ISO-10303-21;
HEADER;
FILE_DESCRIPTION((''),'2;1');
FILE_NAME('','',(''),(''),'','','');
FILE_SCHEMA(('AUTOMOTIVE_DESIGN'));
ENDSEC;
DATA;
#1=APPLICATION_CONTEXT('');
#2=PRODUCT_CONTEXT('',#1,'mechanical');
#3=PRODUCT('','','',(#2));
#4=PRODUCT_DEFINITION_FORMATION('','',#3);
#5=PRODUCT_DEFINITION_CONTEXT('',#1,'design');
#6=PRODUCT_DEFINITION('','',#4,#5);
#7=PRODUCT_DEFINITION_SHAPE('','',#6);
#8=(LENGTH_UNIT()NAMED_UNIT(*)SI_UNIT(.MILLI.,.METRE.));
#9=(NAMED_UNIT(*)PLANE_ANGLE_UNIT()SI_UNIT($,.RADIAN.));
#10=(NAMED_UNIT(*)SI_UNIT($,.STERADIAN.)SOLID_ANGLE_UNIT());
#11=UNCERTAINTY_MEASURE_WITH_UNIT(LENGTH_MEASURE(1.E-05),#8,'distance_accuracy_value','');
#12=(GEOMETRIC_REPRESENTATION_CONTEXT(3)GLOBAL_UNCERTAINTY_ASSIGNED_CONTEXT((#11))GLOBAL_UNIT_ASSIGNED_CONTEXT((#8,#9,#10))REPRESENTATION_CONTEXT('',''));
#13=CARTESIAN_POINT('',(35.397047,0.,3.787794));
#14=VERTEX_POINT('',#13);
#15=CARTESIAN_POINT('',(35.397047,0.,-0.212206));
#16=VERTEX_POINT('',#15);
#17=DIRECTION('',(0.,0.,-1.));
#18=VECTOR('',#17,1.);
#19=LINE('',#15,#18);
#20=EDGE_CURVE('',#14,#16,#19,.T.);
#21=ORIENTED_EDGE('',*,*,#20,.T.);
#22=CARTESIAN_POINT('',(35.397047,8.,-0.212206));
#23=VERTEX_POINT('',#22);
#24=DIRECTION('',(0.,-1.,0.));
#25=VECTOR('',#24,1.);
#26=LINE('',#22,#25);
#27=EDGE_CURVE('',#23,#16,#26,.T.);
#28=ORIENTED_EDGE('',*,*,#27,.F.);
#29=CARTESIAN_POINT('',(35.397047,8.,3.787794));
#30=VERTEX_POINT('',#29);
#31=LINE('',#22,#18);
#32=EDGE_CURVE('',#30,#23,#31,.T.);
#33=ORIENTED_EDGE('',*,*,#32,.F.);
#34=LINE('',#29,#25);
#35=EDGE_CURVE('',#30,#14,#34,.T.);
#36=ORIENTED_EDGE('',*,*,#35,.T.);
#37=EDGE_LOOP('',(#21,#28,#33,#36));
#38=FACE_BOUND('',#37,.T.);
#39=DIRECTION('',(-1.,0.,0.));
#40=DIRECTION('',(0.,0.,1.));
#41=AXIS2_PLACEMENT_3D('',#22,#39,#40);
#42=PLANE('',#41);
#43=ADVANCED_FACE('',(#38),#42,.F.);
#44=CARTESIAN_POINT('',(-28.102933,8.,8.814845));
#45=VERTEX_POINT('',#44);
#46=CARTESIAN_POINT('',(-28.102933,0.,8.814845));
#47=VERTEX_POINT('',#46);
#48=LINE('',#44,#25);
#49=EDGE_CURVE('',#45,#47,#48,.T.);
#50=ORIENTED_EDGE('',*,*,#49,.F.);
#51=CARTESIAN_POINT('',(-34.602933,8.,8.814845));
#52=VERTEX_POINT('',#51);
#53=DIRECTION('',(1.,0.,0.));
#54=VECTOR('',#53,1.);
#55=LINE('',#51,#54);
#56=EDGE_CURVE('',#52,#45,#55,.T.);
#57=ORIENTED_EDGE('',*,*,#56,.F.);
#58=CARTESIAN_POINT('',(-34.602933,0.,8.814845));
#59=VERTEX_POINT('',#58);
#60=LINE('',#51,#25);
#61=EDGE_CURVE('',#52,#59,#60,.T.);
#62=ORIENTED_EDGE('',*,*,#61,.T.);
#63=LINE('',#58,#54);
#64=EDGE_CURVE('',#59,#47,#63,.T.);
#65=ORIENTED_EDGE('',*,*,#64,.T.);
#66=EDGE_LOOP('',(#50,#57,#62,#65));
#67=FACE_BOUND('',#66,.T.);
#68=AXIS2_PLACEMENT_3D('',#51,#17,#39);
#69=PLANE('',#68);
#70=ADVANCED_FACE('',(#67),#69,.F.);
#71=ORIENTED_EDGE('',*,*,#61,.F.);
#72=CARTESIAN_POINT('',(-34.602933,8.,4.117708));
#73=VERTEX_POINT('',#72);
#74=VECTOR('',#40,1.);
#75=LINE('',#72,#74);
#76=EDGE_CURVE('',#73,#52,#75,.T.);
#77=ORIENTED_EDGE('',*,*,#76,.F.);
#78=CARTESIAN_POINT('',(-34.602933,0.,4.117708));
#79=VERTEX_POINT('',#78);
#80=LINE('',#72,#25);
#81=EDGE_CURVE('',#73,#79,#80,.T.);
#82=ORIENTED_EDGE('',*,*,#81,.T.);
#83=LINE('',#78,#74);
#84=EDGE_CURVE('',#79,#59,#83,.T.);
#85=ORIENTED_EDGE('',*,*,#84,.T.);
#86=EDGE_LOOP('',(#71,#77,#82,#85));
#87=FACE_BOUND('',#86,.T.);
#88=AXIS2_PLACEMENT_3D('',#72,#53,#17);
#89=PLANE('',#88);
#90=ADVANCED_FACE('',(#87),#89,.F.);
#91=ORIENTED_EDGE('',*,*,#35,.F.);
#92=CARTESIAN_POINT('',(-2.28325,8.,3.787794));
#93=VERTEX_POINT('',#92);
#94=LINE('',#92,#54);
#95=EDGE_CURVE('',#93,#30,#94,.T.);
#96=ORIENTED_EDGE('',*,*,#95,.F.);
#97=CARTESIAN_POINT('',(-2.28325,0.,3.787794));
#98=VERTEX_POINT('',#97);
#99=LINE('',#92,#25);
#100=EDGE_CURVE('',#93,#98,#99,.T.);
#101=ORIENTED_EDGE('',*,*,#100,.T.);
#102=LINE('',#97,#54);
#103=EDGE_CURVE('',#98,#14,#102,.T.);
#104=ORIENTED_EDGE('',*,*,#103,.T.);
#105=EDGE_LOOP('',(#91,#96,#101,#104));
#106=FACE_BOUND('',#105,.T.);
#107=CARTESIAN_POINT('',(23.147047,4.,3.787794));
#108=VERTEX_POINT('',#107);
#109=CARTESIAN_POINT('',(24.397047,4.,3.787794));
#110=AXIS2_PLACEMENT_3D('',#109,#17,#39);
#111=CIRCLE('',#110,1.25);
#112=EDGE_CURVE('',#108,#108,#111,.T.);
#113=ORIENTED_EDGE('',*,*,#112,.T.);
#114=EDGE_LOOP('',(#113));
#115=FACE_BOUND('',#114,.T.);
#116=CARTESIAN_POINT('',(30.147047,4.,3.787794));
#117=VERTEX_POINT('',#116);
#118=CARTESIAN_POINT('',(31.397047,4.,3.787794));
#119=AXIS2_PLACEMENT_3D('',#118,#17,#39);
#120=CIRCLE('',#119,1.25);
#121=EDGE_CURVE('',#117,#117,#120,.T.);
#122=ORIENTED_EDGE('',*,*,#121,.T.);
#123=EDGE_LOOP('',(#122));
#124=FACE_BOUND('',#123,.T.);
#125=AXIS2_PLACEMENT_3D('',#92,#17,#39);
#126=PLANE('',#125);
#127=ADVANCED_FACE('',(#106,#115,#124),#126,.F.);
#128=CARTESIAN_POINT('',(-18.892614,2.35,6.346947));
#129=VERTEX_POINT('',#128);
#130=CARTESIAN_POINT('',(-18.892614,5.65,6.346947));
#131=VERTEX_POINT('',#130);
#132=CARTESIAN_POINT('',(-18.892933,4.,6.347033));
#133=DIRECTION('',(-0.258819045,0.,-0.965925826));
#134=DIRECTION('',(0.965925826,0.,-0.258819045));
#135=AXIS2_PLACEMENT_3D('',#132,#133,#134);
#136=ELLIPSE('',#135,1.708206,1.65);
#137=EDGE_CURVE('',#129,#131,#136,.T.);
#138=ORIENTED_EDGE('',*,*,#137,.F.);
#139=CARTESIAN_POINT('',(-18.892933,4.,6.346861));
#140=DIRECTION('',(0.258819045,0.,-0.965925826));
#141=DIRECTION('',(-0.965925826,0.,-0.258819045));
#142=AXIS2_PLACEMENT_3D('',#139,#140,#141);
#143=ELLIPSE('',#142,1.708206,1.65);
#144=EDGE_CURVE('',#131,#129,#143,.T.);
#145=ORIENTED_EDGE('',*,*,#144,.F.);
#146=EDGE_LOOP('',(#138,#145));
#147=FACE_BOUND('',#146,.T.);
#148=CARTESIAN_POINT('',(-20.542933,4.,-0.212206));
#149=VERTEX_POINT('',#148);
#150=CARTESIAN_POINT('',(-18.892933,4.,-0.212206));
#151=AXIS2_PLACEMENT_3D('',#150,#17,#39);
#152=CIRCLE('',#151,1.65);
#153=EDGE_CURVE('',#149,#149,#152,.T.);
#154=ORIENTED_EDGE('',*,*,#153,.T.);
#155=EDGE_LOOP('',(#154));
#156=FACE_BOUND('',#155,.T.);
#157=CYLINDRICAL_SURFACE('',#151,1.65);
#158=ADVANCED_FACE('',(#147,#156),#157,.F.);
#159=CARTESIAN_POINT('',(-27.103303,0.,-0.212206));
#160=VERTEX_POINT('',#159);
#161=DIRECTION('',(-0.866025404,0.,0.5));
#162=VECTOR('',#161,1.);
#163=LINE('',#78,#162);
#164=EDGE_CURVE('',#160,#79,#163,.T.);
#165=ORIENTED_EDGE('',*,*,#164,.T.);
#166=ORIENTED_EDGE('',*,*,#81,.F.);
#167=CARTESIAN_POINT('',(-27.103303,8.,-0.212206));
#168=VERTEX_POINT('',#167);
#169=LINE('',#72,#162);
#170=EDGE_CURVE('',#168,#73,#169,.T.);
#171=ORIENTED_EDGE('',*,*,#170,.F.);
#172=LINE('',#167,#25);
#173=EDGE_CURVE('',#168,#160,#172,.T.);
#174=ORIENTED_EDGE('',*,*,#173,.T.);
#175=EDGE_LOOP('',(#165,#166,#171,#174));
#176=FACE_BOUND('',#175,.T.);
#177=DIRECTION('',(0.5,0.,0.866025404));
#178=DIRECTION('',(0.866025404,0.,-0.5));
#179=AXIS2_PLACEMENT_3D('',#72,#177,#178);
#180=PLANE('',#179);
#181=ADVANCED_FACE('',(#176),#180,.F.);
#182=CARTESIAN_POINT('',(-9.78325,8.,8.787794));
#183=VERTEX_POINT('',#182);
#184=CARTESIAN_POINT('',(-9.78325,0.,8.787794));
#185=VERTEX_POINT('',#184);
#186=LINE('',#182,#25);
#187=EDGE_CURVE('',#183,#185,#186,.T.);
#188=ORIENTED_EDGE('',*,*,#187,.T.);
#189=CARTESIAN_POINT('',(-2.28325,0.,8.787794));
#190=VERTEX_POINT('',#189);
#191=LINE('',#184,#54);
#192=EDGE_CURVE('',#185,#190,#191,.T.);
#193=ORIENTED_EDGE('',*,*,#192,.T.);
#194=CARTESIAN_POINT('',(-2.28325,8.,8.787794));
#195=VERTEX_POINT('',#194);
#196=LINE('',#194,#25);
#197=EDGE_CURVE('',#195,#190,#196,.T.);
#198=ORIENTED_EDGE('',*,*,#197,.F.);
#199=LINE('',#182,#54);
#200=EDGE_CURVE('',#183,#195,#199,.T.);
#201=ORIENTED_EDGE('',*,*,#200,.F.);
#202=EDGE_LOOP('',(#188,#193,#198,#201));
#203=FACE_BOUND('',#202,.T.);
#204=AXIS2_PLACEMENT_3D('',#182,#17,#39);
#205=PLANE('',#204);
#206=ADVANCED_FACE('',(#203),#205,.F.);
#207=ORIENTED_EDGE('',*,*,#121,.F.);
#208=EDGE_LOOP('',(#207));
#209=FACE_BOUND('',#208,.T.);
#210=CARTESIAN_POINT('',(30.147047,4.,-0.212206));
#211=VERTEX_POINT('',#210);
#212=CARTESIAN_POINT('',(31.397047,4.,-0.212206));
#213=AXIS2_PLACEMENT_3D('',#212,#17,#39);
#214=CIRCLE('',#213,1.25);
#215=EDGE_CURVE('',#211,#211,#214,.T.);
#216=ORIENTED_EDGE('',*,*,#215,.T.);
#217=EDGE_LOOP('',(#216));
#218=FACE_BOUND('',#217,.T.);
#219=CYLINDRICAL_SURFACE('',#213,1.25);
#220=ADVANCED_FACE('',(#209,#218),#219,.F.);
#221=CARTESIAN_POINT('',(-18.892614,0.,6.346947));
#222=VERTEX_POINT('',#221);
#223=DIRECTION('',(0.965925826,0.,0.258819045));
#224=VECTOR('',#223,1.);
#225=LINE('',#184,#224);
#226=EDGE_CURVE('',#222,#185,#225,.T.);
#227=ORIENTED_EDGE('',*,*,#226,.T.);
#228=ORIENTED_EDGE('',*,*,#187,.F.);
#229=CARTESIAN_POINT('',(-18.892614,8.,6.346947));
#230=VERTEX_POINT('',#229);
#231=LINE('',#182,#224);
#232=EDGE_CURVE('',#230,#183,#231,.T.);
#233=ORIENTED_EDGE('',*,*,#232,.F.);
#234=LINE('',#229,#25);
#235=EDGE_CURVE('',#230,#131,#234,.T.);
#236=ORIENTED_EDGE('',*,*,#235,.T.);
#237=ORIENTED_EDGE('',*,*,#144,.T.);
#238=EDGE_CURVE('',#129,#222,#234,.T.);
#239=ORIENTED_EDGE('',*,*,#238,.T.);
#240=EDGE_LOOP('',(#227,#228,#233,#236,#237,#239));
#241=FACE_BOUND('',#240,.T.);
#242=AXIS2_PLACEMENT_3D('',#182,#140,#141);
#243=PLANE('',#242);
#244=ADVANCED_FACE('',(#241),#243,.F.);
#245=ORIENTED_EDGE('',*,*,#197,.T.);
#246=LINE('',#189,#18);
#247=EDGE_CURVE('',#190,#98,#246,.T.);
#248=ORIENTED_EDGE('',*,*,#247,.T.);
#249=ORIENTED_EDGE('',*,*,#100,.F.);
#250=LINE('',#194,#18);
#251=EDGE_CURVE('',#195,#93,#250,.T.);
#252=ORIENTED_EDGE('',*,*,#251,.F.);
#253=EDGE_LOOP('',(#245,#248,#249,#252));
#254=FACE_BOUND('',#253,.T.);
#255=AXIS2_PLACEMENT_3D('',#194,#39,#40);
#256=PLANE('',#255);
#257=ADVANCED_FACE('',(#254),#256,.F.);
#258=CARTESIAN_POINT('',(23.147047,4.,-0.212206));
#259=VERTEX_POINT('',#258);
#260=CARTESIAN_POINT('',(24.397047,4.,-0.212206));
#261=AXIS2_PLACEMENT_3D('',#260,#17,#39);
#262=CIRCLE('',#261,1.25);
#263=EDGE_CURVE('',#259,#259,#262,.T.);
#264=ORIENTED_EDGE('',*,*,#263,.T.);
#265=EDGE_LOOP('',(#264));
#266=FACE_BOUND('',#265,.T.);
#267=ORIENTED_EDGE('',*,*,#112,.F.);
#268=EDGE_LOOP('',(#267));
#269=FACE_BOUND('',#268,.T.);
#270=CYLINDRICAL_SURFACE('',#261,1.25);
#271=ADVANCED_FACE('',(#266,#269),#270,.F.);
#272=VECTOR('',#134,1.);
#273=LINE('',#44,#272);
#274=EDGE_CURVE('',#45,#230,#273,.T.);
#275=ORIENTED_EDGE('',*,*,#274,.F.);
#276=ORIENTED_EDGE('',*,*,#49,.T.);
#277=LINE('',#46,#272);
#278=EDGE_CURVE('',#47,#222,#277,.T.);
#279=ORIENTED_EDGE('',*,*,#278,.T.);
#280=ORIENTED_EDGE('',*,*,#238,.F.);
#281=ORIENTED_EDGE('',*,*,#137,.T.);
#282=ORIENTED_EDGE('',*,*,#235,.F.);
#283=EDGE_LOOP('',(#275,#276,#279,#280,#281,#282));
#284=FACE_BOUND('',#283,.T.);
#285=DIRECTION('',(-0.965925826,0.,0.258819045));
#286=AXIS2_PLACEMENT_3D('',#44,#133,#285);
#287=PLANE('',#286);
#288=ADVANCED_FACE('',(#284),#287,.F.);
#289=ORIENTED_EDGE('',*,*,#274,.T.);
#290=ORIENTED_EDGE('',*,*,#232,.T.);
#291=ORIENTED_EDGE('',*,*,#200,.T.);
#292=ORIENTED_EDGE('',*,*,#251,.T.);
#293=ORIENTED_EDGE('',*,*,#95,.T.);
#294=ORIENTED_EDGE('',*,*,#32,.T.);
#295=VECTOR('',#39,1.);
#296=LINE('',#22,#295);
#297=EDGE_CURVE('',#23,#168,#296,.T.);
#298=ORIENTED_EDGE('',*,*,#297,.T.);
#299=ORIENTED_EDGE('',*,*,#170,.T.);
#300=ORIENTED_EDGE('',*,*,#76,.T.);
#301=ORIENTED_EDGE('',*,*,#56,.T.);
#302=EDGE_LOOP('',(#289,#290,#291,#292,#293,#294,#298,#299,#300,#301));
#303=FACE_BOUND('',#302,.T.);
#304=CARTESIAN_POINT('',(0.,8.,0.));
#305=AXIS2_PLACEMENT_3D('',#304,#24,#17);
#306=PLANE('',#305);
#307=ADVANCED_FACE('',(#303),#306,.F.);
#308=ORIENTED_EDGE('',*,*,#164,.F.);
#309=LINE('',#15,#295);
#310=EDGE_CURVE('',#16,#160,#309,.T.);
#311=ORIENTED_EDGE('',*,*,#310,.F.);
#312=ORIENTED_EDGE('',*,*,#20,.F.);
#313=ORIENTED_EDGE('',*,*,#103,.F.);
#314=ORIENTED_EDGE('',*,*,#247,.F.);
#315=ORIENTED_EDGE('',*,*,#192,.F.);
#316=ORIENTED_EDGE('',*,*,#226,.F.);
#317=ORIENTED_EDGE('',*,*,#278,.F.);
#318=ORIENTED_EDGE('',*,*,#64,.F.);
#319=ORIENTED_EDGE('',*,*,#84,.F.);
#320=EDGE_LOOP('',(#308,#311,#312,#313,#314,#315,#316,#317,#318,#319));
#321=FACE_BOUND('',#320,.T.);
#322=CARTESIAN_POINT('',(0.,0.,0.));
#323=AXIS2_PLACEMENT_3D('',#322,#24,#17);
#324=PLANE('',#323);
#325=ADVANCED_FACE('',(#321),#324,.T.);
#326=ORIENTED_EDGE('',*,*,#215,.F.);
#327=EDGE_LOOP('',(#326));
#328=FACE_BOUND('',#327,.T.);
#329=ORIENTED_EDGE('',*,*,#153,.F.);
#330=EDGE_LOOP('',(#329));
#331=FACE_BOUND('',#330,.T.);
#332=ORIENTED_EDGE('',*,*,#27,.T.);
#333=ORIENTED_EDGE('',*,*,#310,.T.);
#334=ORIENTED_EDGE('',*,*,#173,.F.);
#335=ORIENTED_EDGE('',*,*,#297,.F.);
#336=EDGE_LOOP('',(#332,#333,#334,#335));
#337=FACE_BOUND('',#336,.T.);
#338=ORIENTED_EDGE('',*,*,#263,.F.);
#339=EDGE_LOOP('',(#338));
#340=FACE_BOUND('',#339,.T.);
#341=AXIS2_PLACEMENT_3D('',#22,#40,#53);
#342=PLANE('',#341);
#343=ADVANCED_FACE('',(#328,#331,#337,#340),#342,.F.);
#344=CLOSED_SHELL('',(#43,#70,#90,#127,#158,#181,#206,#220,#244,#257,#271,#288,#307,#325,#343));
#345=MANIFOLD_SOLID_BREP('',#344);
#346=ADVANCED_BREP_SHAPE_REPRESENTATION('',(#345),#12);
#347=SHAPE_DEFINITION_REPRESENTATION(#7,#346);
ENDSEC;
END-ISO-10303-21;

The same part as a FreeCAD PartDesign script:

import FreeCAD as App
import Part
import Sketcher
from FreeCAD import Vector
Q = App.Units.Quantity


def add_polygon(sketch, points):
    """Adds a closed chain of lines whose ends are joined by coincident constraints."""
    first, n = sketch.GeometryCount, len(points)
    for a, b in zip(points, points[1:] + points[:1]):
        sketch.addGeometry(Part.LineSegment(App.Vector(*a, 0), App.Vector(*b, 0)), False)
    for i in range(n):
        sketch.addConstraint(Sketcher.Constraint("Coincident", first + i, 2, first + (i + 1) % n, 1))

doc = App.newDocument("Part")
body = doc.addObject("PartDesign::Body", "Body")

# Sketch on XZ plane
sketch1 = doc.addObject("Sketcher::SketchObject", "Sketch")
body.addObject(sketch1)
sketch1.AttachmentSupport = (doc.XZ_Plane, [""])
sketch1.MapMode = "FlatFace"
add_polygon(sketch1, [(35.4, 3.8), (35.4, -0.2), (-27.1, -0.2), (-34.6, 4.1), (-34.6, 8.8), (-28.1, 8.8), (-18.9, 6.3), (-9.8, 8.8), (-2.3, 8.8), (-2.3, 3.8)])  # lines 0-9
sketch1.addConstraint([
    Sketcher.Constraint("Vertical", 0),
    Sketcher.Constraint("Horizontal", 1),
    Sketcher.Constraint("Vertical", 3),
    Sketcher.Constraint("Horizontal", 4),
    Sketcher.Constraint("Horizontal", 7),
    Sketcher.Constraint("Vertical", 8),
    Sketcher.Constraint("Horizontal", 9),
    Sketcher.Constraint("DistanceY", 0, 2, 0, 1, Q("4 mm")),
    Sketcher.Constraint("DistanceY", 8, 2, 8, 1, Q("5 mm")),
    Sketcher.Constraint("Angle", 2, Q("150 deg")),
    Sketcher.Constraint("Angle", 5, Q("-15 deg")),
    Sketcher.Constraint("Angle", 6, Q("15 deg")),
    Sketcher.Constraint("DistanceX", 4, 1, 4, 2, Q("6.5 mm")),
    Sketcher.Constraint("DistanceX", 7, 1, 7, 2, Q("7.5 mm")),
    Sketcher.Constraint("DistanceX", 1, 2, 1, 1, Q("62.500349 mm")),
    Sketcher.Constraint("DistanceX", 9, 1, 9, 2, Q("37.680296 mm")),
    Sketcher.Constraint("DistanceY", 3, 1, 3, 2, Q("4.697137 mm")),
    Sketcher.Constraint("DistanceX", 6, 2, -1, 1, Q("9.78325 mm")),
    Sketcher.Constraint("DistanceX", 2, 2, 1, 2, Q("7.499631 mm")),
    Sketcher.Constraint("DistanceY", 0, 2, -1, 1, Q("0.212206 mm")),
])
pad1 = doc.addObject("PartDesign::Pad", "Pad")
body.addObject(pad1)
pad1.Profile = sketch1
pad1.Length = 8
pad1.Reversed = True

# Sketch on XY plane
sketch2 = doc.addObject("Sketcher::SketchObject", "Sketch001")
body.addObject(sketch2)
sketch2.AttachmentSupport = (doc.XY_Plane, [""])
sketch2.MapMode = "FlatFace"
sketch2.AttachmentOffset = App.Placement(Vector(0, 0, -0.212206), App.Rotation())
sketch2.addGeometry([
    Part.Circle(Vector(31.4, 4, 0), Vector(0, 0, 1), 1.2),
    Part.Circle(Vector(24.4, 4, 0), Vector(0, 0, 1), 1.2),
], False)
sketch2.addConstraint([
    Sketcher.Constraint("Equal", 0, 1),
    Sketcher.Constraint("Horizontal", 0, 3, 1, 3),
    Sketcher.Constraint("Diameter", 0, Q("2.5 mm")),
    Sketcher.Constraint("DistanceY", -1, 1, 0, 3, Q("4 mm")),
    Sketcher.Constraint("DistanceX", 1, 3, 0, 3, Q("7 mm")),
    Sketcher.Constraint("DistanceX", -1, 1, 0, 3, Q("31.397047 mm")),
])
doc.recompute()
hole = doc.addObject("PartDesign::Hole", "Hole")
body.addObject(hole)
hole.Profile = sketch2
hole.ThreadType = "None"
hole.Diameter = 2.5
hole.DepthType = "Dimension"
hole.Depth = 8.5
hole.DrillPoint = "Angled"
hole.DrillPointAngle = 118
hole.Reversed = True

# Sketch on XY plane
sketch3 = doc.addObject("Sketcher::SketchObject", "Sketch002")
body.addObject(sketch3)
sketch3.AttachmentSupport = (doc.XY_Plane, [""])
sketch3.MapMode = "FlatFace"
sketch3.AttachmentOffset = App.Placement(Vector(0, 0, -0.212206), App.Rotation())
sketch3.addGeometry(Part.Circle(Vector(-18.9, 4, 0), Vector(0, 0, 1), 1.6), False)
sketch3.addConstraint([
    Sketcher.Constraint("Diameter", 0, Q("3.3 mm")),
    Sketcher.Constraint("DistanceY", -1, 1, 0, 3, Q("4 mm")),
    Sketcher.Constraint("DistanceX", 0, 3, -1, 1, Q("18.892933 mm")),
])
doc.recompute()
hole2 = doc.addObject("PartDesign::Hole", "Hole001")
body.addObject(hole2)
hole2.Profile = sketch3
hole2.ThreadType = "None"
hole2.Diameter = 3.3
hole2.DepthType = "Dimension"
hole2.Depth = 11.5
hole2.DrillPoint = "Angled"
hole2.DrillPointAngle = 118
hole2.Reversed = True

doc.recompute()
